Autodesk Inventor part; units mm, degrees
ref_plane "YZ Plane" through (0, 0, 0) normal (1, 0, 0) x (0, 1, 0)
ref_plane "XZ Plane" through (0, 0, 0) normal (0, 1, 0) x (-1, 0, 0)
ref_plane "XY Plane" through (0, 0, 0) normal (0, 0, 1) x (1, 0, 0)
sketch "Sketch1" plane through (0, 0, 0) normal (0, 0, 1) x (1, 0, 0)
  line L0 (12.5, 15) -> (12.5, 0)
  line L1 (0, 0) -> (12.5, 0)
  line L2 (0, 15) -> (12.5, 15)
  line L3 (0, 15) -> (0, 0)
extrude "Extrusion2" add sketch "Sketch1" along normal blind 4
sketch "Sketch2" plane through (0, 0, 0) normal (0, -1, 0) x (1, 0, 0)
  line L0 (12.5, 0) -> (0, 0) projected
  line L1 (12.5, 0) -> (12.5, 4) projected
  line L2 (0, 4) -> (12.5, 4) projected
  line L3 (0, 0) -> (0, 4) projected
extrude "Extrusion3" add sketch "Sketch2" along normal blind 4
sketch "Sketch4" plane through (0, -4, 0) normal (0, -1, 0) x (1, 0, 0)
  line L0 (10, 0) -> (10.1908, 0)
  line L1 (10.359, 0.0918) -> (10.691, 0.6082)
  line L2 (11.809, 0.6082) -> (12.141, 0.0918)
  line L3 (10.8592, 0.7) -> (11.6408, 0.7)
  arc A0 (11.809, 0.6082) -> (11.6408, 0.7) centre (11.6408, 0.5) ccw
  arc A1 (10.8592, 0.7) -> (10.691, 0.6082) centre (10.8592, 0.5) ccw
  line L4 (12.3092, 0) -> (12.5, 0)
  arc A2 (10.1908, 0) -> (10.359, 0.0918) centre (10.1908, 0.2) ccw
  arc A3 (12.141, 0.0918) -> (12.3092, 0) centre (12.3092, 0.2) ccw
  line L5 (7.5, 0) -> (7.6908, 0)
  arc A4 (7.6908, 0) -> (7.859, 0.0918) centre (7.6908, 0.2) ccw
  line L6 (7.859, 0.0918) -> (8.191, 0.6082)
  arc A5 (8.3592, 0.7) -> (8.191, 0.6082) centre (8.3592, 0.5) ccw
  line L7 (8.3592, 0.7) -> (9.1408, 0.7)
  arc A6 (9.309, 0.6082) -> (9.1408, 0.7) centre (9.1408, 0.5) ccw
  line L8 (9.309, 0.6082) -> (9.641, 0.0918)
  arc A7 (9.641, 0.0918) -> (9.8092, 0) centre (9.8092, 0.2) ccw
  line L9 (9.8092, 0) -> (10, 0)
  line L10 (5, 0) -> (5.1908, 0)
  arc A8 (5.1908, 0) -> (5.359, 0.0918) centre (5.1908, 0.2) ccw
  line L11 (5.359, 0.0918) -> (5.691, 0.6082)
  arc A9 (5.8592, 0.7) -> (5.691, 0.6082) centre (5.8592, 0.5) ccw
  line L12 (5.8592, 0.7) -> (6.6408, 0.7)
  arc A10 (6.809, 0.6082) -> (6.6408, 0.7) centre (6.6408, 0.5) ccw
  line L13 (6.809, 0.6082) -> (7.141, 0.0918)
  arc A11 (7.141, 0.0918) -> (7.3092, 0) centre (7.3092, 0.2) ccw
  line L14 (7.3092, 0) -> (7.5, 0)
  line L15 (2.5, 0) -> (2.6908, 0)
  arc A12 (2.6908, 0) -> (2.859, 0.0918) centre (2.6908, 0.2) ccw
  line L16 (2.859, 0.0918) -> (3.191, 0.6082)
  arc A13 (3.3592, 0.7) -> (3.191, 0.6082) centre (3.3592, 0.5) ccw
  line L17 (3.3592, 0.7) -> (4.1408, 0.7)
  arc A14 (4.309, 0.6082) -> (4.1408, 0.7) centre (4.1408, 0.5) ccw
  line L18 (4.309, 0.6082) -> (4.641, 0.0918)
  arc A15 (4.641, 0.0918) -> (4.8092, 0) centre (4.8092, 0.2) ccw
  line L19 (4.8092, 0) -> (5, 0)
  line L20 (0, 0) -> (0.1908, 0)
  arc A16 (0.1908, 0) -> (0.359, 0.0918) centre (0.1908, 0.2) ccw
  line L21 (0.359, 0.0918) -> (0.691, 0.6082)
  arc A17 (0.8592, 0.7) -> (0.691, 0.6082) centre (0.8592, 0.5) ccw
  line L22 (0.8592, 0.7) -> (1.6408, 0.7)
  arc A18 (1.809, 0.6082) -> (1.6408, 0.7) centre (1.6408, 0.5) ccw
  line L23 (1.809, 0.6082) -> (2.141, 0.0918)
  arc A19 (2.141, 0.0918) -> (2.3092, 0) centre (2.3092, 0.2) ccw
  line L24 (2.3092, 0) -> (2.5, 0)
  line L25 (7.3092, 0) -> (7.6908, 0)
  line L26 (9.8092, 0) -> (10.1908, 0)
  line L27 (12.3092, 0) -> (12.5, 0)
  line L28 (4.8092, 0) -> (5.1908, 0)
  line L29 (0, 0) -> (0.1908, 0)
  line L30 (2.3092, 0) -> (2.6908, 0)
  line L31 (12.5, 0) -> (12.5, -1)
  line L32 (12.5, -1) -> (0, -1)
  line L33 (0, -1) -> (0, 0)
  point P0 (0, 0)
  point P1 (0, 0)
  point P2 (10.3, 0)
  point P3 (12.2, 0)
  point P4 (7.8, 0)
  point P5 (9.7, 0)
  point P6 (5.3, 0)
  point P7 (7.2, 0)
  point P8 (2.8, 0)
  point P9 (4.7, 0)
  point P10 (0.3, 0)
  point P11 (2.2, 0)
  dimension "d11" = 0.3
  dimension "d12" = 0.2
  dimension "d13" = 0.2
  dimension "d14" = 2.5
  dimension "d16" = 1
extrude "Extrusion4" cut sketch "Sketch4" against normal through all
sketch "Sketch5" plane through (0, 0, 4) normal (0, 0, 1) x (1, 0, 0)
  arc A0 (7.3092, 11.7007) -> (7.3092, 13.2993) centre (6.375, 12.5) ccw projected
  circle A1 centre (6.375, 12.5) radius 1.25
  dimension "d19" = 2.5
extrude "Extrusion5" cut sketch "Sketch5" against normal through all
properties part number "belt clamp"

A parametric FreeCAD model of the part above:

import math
import FreeCAD as App
import Part
import Sketcher

V = App.Vector
Q = App.Units.Quantity

doc = App.newDocument("Part")
body = doc.addObject("PartDesign::Body", "Body")

# Sketch on XY plane
sketch1 = body.newObject("Sketcher::SketchObject", "Sketch")
sketch1.AttachmentSupport = (doc.getObject("XY_Plane"), [""])
sketch1.MapMode = "FlatFace"
sketch1.addGeometry(Part.LineSegment(V(12, 0, 0), V(12, 15, 0)), False)
sketch1.addGeometry(Part.LineSegment(V(12, 15, 0), V(0, 15, 0)), False)
sketch1.addGeometry(Part.LineSegment(V(0, 15, 0), V(0, 0, 0)), False)
sketch1.addGeometry(Part.LineSegment(V(0, 0, 0), V(12, 0, 0)), False)
sketch1.addConstraint(Sketcher.Constraint("Coincident", 0, 2, 1, 1))
sketch1.addConstraint(Sketcher.Constraint("Coincident", 1, 2, 2, 1))
sketch1.addConstraint(Sketcher.Constraint("Coincident", 2, 2, 3, 1))
sketch1.addConstraint(Sketcher.Constraint("Coincident", 3, 2, 0, 1))
sketch1.addConstraint(Sketcher.Constraint("Vertical", 0))
sketch1.addConstraint(Sketcher.Constraint("Horizontal", 1))
sketch1.addConstraint(Sketcher.Constraint("Vertical", 2))
sketch1.addConstraint(Sketcher.Constraint("Horizontal", 3))
sketch1.addConstraint(Sketcher.Constraint("Coincident", 2, 2, -1, 1))
sketch1.addConstraint(Sketcher.Constraint("DistanceY", 0, 1, 0, 2, Q("15 mm")))
sketch1.addConstraint(Sketcher.Constraint("DistanceX", 1, 2, 1, 1, Q("12.5 mm")))
pad1 = body.newObject("PartDesign::Pad", "Pad")
pad1.Profile = sketch1
pad1.Length = 4

# Sketch on XZ plane
sketch2 = body.newObject("Sketcher::SketchObject", "Sketch001")
sketch2.AttachmentSupport = (doc.getObject("XZ_Plane"), [""])
sketch2.MapMode = "FlatFace"
sketch2.addGeometry(Part.LineSegment(V(0, 0, 0), V(12.5, 0, 0)), False)
sketch2.addGeometry(Part.LineSegment(V(12.5, 0, 0), V(12.5, 4, 0)), False)
sketch2.addGeometry(Part.LineSegment(V(12.5, 4, 0), V(0, 4, 0)), False)
sketch2.addGeometry(Part.LineSegment(V(0, 4, 0), V(0, 0, 0)), False)
sketch2.addConstraint(Sketcher.Constraint("Coincident", 0, 2, 1, 1))
sketch2.addConstraint(Sketcher.Constraint("Coincident", 1, 2, 2, 1))
sketch2.addConstraint(Sketcher.Constraint("Coincident", 2, 2, 3, 1))
sketch2.addConstraint(Sketcher.Constraint("Coincident", 3, 2, 0, 1))
sketch2.addConstraint(Sketcher.Constraint("Horizontal", 0))
sketch2.addConstraint(Sketcher.Constraint("Vertical", 1))
sketch2.addConstraint(Sketcher.Constraint("Horizontal", 2))
sketch2.addConstraint(Sketcher.Constraint("Vertical", 3))
sketch2.addConstraint(Sketcher.Constraint("Coincident", 3, 2, -1, 1))
sketch2.addConstraint(Sketcher.Constraint("DistanceY", 1, 1, 1, 2, Q("4 mm")))
sketch2.addConstraint(Sketcher.Constraint("DistanceX", 0, 1, 0, 2, Q("12.5 mm")))
pad2 = body.newObject("PartDesign::Pad", "Pad001")
pad2.Profile = sketch2
pad2.Length = 4

# Sketch on XZ plane
sketch3 = body.newObject("Sketcher::SketchObject", "Sketch002")
sketch3.AttachmentSupport = (doc.getObject("XZ_Plane"), [""])
sketch3.MapMode = "FlatFace"
sketch3.AttachmentOffset = App.Placement(V(0, 0, 4), App.Rotation())
sketch3.addGeometry(Part.LineSegment(V(10.19, 0, 0), V(9.81, 0, 0)), False)
sketch3.addGeometry(Part.ArcOfCircle(Part.Circle(V(9.81, 0.2, 0), V(0, 0, 1), 0.2), math.radians(-147), math.radians(-90)), False)
sketch3.addGeometry(Part.LineSegment(V(9.64, 0.09, 0), V(9.31, 0.61, 0)), False)
sketch3.addGeometry(Part.ArcOfCircle(Part.Circle(V(9.14, 0.5, 0), V(0, 0, 1), 0.2), math.radians(33), math.radians(90)), False)
sketch3.addGeometry(Part.LineSegment(V(9.14, 0.7, 0), V(8.36, 0.7, 0)), False)
sketch3.addGeometry(Part.ArcOfCircle(Part.Circle(V(8.36, 0.5, 0), V(0, 0, 1), 0.2), math.radians(90), math.radians(147)), False)
sketch3.addGeometry(Part.LineSegment(V(8.19, 0.61, 0), V(7.86, 0.09, 0)), False)
sketch3.addGeometry(Part.ArcOfCircle(Part.Circle(V(7.69, 0.2, 0), V(0, 0, 1), 0.2), math.radians(-90), math.radians(-33)), False)
sketch3.addGeometry(Part.LineSegment(V(7.69, 0, 0), V(7.31, 0, 0)), False)
sketch3.addGeometry(Part.ArcOfCircle(Part.Circle(V(7.31, 0.2, 0), V(0, 0, 1), 0.2), math.radians(-147), math.radians(-90)), False)
sketch3.addGeometry(Part.LineSegment(V(7.14, 0.09, 0), V(6.81, 0.61, 0)), False)
sketch3.addGeometry(Part.ArcOfCircle(Part.Circle(V(6.64, 0.5, 0), V(0, 0, 1), 0.2), math.radians(33), math.radians(90)), False)
sketch3.addGeometry(Part.LineSegment(V(6.64, 0.7, 0), V(5.86, 0.7, 0)), False)
sketch3.addGeometry(Part.ArcOfCircle(Part.Circle(V(5.86, 0.5, 0), V(0, 0, 1), 0.2), math.radians(90), math.radians(147)), False)
sketch3.addGeometry(Part.LineSegment(V(5.69, 0.61, 0), V(5.36, 0.09, 0)), False)
sketch3.addGeometry(Part.ArcOfCircle(Part.Circle(V(5.19, 0.2, 0), V(0, 0, 1), 0.2), math.radians(-90), math.radians(-33)), False)
sketch3.addGeometry(Part.LineSegment(V(5.19, 0, 0), V(4.81, 0, 0)), False)
sketch3.addGeometry(Part.ArcOfCircle(Part.Circle(V(4.81, 0.2, 0), V(0, 0, 1), 0.2), math.radians(-147), math.radians(-90)), False)
sketch3.addGeometry(Part.LineSegment(V(4.64, 0.09, 0), V(4.31, 0.61, 0)), False)
sketch3.addGeometry(Part.ArcOfCircle(Part.Circle(V(4.14, 0.5, 0), V(0, 0, 1), 0.2), math.radians(33), math.radians(90)), False)
sketch3.addGeometry(Part.LineSegment(V(4.14, 0.7, 0), V(3.36, 0.7, 0)), False)
sketch3.addGeometry(Part.ArcOfCircle(Part.Circle(V(3.36, 0.5, 0), V(0, 0, 1), 0.2), math.radians(90), math.radians(147)), False)
sketch3.addGeometry(Part.LineSegment(V(3.19, 0.61, 0), V(2.86, 0.09, 0)), False)
sketch3.addGeometry(Part.ArcOfCircle(Part.Circle(V(2.69, 0.2, 0), V(0, 0, 1), 0.2), math.radians(-90), math.radians(-33)), False)
sketch3.addGeometry(Part.LineSegment(V(2.69, 0, 0), V(2.31, 0, 0)), False)
sketch3.addGeometry(Part.ArcOfCircle(Part.Circle(V(2.31, 0.2, 0), V(0, 0, 1), 0.2), math.radians(-147), math.radians(-90)), False)
sketch3.addGeometry(Part.LineSegment(V(2.14, 0.09, 0), V(1.81, 0.61, 0)), False)
sketch3.addGeometry(Part.ArcOfCircle(Part.Circle(V(1.64, 0.5, 0), V(0, 0, 1), 0.2), math.radians(33), math.radians(90)), False)
sketch3.addGeometry(Part.LineSegment(V(1.64, 0.7, 0), V(0.86, 0.7, 0)), False)
sketch3.addGeometry(Part.ArcOfCircle(Part.Circle(V(0.86, 0.5, 0), V(0, 0, 1), 0.2), math.radians(90), math.radians(147)), False)
sketch3.addGeometry(Part.LineSegment(V(0.69, 0.61, 0), V(0.36, 0.09, 0)), False)
sketch3.addGeometry(Part.ArcOfCircle(Part.Circle(V(0.19, 0.2, 0), V(0, 0, 1), 0.2), math.radians(-90), math.radians(-33)), False)
sketch3.addGeometry(Part.LineSegment(V(0.19, 0, 0), V(0, 0, 0)), False)
sketch3.addGeometry(Part.LineSegment(V(0, 0, 0), V(0, -1, 0)), False)
sketch3.addGeometry(Part.LineSegment(V(0, -1, 0), V(12.5, -1, 0)), False)
sketch3.addGeometry(Part.LineSegment(V(12.5, -1, 0), V(12.5, 0, 0)), False)
sketch3.addGeometry(Part.LineSegment(V(12.5, 0, 0), V(12.31, 0, 0)), False)
sketch3.addGeometry(Part.ArcOfCircle(Part.Circle(V(12.31, 0.2, 0), V(0, 0, 1), 0.2), math.radians(-147), math.radians(-90)), False)
sketch3.addGeometry(Part.LineSegment(V(12.14, 0.09, 0), V(11.81, 0.61, 0)), False)
sketch3.addGeometry(Part.ArcOfCircle(Part.Circle(V(11.64, 0.5, 0), V(0, 0, 1), 0.2), math.radians(33), math.radians(90)), False)
sketch3.addGeometry(Part.LineSegment(V(11.64, 0.7, 0), V(10.86, 0.7, 0)), False)
sketch3.addGeometry(Part.ArcOfCircle(Part.Circle(V(10.86, 0.5, 0), V(0, 0, 1), 0.2), math.radians(90), math.radians(147)), False)
sketch3.addGeometry(Part.LineSegment(V(10.69, 0.61, 0), V(10.36, 0.09, 0)), False)
sketch3.addGeometry(Part.ArcOfCircle(Part.Circle(V(10.19, 0.2, 0), V(0, 0, 1), 0.2), math.radians(-90), math.radians(-33)), False)
sketch3.addConstraint(Sketcher.Constraint("Tangent", 0, 2, 1, 2))
sketch3.addConstraint(Sketcher.Constraint("Tangent", 1, 1, 2, 1))
sketch3.addConstraint(Sketcher.Constraint("Tangent", 2, 2, 3, 1))
sketch3.addConstraint(Sketcher.Constraint("Tangent", 3, 2, 4, 1))
sketch3.addConstraint(Sketcher.Constraint("Tangent", 4, 2, 5, 1))
sketch3.addConstraint(Sketcher.Constraint("Tangent", 5, 2, 6, 1))
sketch3.addConstraint(Sketcher.Constraint("Tangent", 6, 2, 7, 2))
sketch3.addConstraint(Sketcher.Constraint("Tangent", 7, 1, 8, 1))
sketch3.addConstraint(Sketcher.Constraint("Tangent", 8, 2, 9, 2))
sketch3.addConstraint(Sketcher.Constraint("Tangent", 9, 1, 10, 1))
sketch3.addConstraint(Sketcher.Constraint("Tangent", 10, 2, 11, 1))
sketch3.addConstraint(Sketcher.Constraint("Tangent", 11, 2, 12, 1))
sketch3.addConstraint(Sketcher.Constraint("Tangent", 12, 2, 13, 1))
sketch3.addConstraint(Sketcher.Constraint("Tangent", 13, 2, 14, 1))
sketch3.addConstraint(Sketcher.Constraint("Tangent", 14, 2, 15, 2))
sketch3.addConstraint(Sketcher.Constraint("Tangent", 15, 1, 16, 1))
sketch3.addConstraint(Sketcher.Constraint("Tangent", 16, 2, 17, 2))
sketch3.addConstraint(Sketcher.Constraint("Tangent", 17, 1, 18, 1))
sketch3.addConstraint(Sketcher.Constraint("Tangent", 18, 2, 19, 1))
sketch3.addConstraint(Sketcher.Constraint("Tangent", 19, 2, 20, 1))
sketch3.addConstraint(Sketcher.Constraint("Tangent", 20, 2, 21, 1))
sketch3.addConstraint(Sketcher.Constraint("Tangent", 21, 2, 22, 1))
sketch3.addConstraint(Sketcher.Constraint("Tangent", 22, 2, 23, 2))
sketch3.addConstraint(Sketcher.Constraint("Tangent", 23, 1, 24, 1))
sketch3.addConstraint(Sketcher.Constraint("Tangent", 24, 2, 25, 2))
sketch3.addConstraint(Sketcher.Constraint("Tangent", 25, 1, 26, 1))
sketch3.addConstraint(Sketcher.Constraint("Tangent", 26, 2, 27, 1))
sketch3.addConstraint(Sketcher.Constraint("Tangent", 27, 2, 28, 1))
sketch3.addConstraint(Sketcher.Constraint("Tangent", 28, 2, 29, 1))
sketch3.addConstraint(Sketcher.Constraint("Tangent", 29, 2, 30, 1))
sketch3.addConstraint(Sketcher.Constraint("Tangent", 30, 2, 31, 2))
sketch3.addConstraint(Sketcher.Constraint("Tangent", 31, 1, 32, 1))
sketch3.addConstraint(Sketcher.Constraint("Coincident", 32, 2, 33, 1))
sketch3.addConstraint(Sketcher.Constraint("Coincident", 33, 2, 34, 1))
sketch3.addConstraint(Sketcher.Constraint("Coincident", 34, 2, 35, 1))
sketch3.addConstraint(Sketcher.Constraint("Coincident", 35, 2, 36, 1))
sketch3.addConstraint(Sketcher.Constraint("Tangent", 36, 2, 37, 2))
sketch3.addConstraint(Sketcher.Constraint("Tangent", 37, 1, 38, 1))
sketch3.addConstraint(Sketcher.Constraint("Tangent", 38, 2, 39, 1))
sketch3.addConstraint(Sketcher.Constraint("Tangent", 39, 2, 40, 1))
sketch3.addConstraint(Sketcher.Constraint("Tangent", 40, 2, 41, 1))
sketch3.addConstraint(Sketcher.Constraint("Tangent", 41, 2, 42, 1))
sketch3.addConstraint(Sketcher.Constraint("Tangent", 42, 2, 43, 2))
sketch3.addConstraint(Sketcher.Constraint("Tangent", 43, 1, 0, 1))
sketch3.addConstraint(Sketcher.Constraint("Horizontal", 0))
sketch3.addConstraint(Sketcher.Constraint("Horizontal", 4))
sketch3.addConstraint(Sketcher.Constraint("Horizontal", 8))
sketch3.addConstraint(Sketcher.Constraint("Horizontal", 12))
sketch3.addConstraint(Sketcher.Constraint("Horizontal", 16))
sketch3.addConstraint(Sketcher.Constraint("Horizontal", 20))
sketch3.addConstraint(Sketcher.Constraint("Horizontal", 24))
sketch3.addConstraint(Sketcher.Constraint("Horizontal", 28))
sketch3.addConstraint(Sketcher.Constraint("Horizontal", 32))
sketch3.addConstraint(Sketcher.Constraint("Vertical", 33))
sketch3.addConstraint(Sketcher.Constraint("Horizontal", 34))
sketch3.addConstraint(Sketcher.Constraint("Vertical", 35))
sketch3.addConstraint(Sketcher.Constraint("Horizontal", 36))
sketch3.addConstraint(Sketcher.Constraint("Horizontal", 40))
sketch3.addConstraint(Sketcher.Constraint("Coincident", 32, 2, -1, 1))
sketch3.addConstraint(Sketcher.Constraint("Equal", 1, 3))
sketch3.addConstraint(Sketcher.Constraint("Equal", 3, 5))
sketch3.addConstraint(Sketcher.Constraint("Equal", 5, 7))
sketch3.addConstraint(Sketcher.Constraint("Equal", 7, 9))
sketch3.addConstraint(Sketcher.Constraint("Equal", 9, 11))
sketch3.addConstraint(Sketcher.Constraint("Equal", 11, 13))
sketch3.addConstraint(Sketcher.Constraint("Equal", 13, 15))
sketch3.addConstraint(Sketcher.Constraint("Equal", 15, 17))
sketch3.addConstraint(Sketcher.Constraint("Equal", 17, 19))
sketch3.addConstraint(Sketcher.Constraint("Equal", 19, 21))
sketch3.addConstraint(Sketcher.Constraint("Equal", 21, 23))
sketch3.addConstraint(Sketcher.Constraint("Equal", 23, 25))
sketch3.addConstraint(Sketcher.Constraint("Equal", 25, 27))
sketch3.addConstraint(Sketcher.Constraint("Equal", 27, 29))
sketch3.addConstraint(Sketcher.Constraint("Equal", 29, 31))
sketch3.addConstraint(Sketcher.Constraint("Equal", 31, 37))
sketch3.addConstraint(Sketcher.Constraint("Equal", 37, 39))
sketch3.addConstraint(Sketcher.Constraint("Equal", 39, 41))
sketch3.addConstraint(Sketcher.Constraint("Equal", 41, 43))
sketch3.addConstraint(Sketcher.Constraint("PointOnObject", 0, 2, -1))
sketch3.addConstraint(Sketcher.Constraint("PointOnObject", 7, 1, -1))
sketch3.addConstraint(Sketcher.Constraint("PointOnObject", 15, 1, -1))
sketch3.addConstraint(Sketcher.Constraint("PointOnObject", 23, 1, -1))
sketch3.addConstraint(Sketcher.Constraint("PointOnObject", 35, 2, -1))
sketch3.addConstraint(Sketcher.Constraint("Parallel", 2, 10))
sketch3.addConstraint(Sketcher.Constraint("Parallel", 6, 14))
sketch3.addConstraint(Sketcher.Constraint("Parallel", 10, 18))
sketch3.addConstraint(Sketcher.Constraint("Parallel", 14, 22))
sketch3.addConstraint(Sketcher.Constraint("Parallel", 18, 26))
sketch3.addConstraint(Sketcher.Constraint("Parallel", 22, 30))
sketch3.addConstraint(Sketcher.Constraint("Parallel", 26, 38))
sketch3.addConstraint(Sketcher.Constraint("Parallel", 30, 42))
sketch3.addConstraint(Sketcher.Constraint("Horizontal", 5, 3, 11, 3))
sketch3.addConstraint(Sketcher.Constraint("Horizontal", 13, 3, 19, 3))
sketch3.addConstraint(Sketcher.Constraint("Horizontal", 21, 3, 27, 3))
sketch3.addConstraint(Sketcher.Constraint("Horizontal", 29, 3, 39, 3))
sketch3.addConstraint(Sketcher.Constraint("Horizontal", 2, 2, 5, 2))
sketch3.addConstraint(Sketcher.Constraint("Equal", 0, 8))
sketch3.addConstraint(Sketcher.Constraint("Equal", 4, 12))
sketch3.addConstraint(Sketcher.Constraint("Equal", 8, 16))
sketch3.addConstraint(Sketcher.Constraint("Equal", 12, 20))
sketch3.addConstraint(Sketcher.Constraint("Equal", 16, 24))
sketch3.addConstraint(Sketcher.Constraint("Equal", 20, 28))
sketch3.addConstraint(Sketcher.Constraint("Equal", 32, 36))
sketch3.addConstraint(Sketcher.Constraint("Equal", 28, 40))
sketch3.addConstraint(Sketcher.Constraint("Radius", 1, Q("0.2 mm")))
sketch3.addConstraint(Sketcher.Constraint("DistanceY", 33, 2, 33, 1, Q("1 mm")))
sketch3.addConstraint(Sketcher.Constraint("DistanceX", 34, 1, 34, 2, Q("12.5 mm")))
sketch3.addConstraint(Sketcher.Constraint("DistanceY", -1, 1, 3, 3, Q("0.5 mm")))
sketch3.addConstraint(Sketcher.Constraint("Distance", 2, Q("0.614 mm")))
sketch3.addConstraint(Sketcher.Constraint("DistanceX", 0, 2, 0, 1, Q("0.3816 mm")))
sketch3.addConstraint(Sketcher.Constraint("DistanceX", 4, 2, 4, 1, Q("0.7816 mm")))
pocket1 = body.newObject("PartDesign::Pocket", "Pocket")
pocket1.Profile = sketch3
pocket1.Type = "ThroughAll"

# Sketch on XY plane
sketch4 = body.newObject("Sketcher::SketchObject", "Sketch003")
sketch4.AttachmentSupport = (doc.getObject("XY_Plane"), [""])
sketch4.MapMode = "FlatFace"
sketch4.AttachmentOffset = App.Placement(V(0, 0, 4), App.Rotation())
sketch4.addGeometry(Part.Circle(V(6.4, 12.5, 0), V(0, 0, 1), 1.2), False)
sketch4.addConstraint(Sketcher.Constraint("Diameter", 0, Q("2.5 mm")))
sketch4.addConstraint(Sketcher.Constraint("DistanceY", -1, 1, 0, 3, Q("12.5 mm")))
sketch4.addConstraint(Sketcher.Constraint("DistanceX", -1, 1, 0, 3, Q("6.375 mm")))
pocket2 = body.newObject("PartDesign::Pocket", "Pocket001")
pocket2.Profile = sketch4
pocket2.Type = "ThroughAll"

doc.recompute()
